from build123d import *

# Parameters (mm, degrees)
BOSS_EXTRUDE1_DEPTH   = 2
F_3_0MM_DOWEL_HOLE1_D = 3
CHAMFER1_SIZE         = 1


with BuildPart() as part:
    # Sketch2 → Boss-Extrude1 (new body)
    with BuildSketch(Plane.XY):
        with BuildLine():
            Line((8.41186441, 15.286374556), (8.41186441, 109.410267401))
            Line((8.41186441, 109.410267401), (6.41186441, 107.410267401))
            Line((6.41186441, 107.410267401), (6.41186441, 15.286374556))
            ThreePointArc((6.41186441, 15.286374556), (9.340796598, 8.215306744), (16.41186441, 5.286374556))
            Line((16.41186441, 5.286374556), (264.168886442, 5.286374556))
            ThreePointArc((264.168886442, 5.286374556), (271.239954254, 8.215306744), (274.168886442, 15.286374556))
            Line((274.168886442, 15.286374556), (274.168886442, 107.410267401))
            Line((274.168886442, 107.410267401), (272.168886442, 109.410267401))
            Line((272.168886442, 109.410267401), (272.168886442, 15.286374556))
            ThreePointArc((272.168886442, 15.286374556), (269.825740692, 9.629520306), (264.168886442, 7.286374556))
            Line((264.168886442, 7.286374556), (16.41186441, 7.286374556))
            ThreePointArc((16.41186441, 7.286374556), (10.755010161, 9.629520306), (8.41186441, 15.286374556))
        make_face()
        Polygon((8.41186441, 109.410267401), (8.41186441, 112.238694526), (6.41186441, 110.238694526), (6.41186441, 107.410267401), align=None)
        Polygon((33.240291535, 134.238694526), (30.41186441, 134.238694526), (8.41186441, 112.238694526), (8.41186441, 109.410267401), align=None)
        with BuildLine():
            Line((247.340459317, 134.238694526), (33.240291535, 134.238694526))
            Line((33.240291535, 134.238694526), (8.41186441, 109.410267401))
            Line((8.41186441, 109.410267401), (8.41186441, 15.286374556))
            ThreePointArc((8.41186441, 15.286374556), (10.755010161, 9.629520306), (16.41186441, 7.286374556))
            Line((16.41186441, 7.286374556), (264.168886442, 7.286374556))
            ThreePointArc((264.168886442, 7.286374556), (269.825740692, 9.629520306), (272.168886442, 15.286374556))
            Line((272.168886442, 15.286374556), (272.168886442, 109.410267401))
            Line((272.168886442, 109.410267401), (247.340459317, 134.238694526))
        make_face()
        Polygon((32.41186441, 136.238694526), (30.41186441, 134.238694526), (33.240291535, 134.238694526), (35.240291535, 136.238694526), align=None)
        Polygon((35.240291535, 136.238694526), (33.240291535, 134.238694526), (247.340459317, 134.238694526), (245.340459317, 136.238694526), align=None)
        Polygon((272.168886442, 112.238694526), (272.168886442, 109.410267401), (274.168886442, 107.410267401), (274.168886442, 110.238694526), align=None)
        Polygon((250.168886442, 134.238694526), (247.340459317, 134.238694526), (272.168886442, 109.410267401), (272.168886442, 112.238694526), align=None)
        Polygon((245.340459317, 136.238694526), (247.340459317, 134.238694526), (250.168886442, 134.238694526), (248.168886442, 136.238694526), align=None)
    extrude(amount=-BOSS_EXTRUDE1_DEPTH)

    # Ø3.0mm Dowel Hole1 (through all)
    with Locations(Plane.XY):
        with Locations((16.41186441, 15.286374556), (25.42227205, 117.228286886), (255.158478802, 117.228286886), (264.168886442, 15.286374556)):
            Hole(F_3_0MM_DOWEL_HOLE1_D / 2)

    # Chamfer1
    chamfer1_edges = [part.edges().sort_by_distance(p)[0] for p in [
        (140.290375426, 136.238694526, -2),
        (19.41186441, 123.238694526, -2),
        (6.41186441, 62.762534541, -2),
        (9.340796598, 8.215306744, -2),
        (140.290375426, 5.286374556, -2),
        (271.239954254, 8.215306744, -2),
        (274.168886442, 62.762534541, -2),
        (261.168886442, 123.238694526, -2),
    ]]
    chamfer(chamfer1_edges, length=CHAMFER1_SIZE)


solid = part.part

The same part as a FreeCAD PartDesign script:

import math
import FreeCAD as App
import Part
import Sketcher

V = App.Vector


def edges_at(feature, points):
    """Names of the edges that pass closest to the given points."""
    edges = feature.Shape.Edges
    near = lambda p: min(range(len(edges)), key=lambda i: edges[i].distToShape(Part.Vertex(*p))[0])
    return sorted({f"Edge{near(p) + 1}" for p in points})

doc = App.newDocument("Part")
params = doc.addObject("Spreadsheet::Sheet", "Params")
for row, (alias, value) in enumerate([
    ("sketch1_radius", "10 mm"),
    ("pad1_length", "2 mm"),
    ("sketch2_diameter", "3 mm"),
    ("hole_diameter", "3 mm"),
    ("chamfer_size", "1 mm"),
], start=1):
    params.set(f"A{row}", alias)
    params.set(f"B{row}", "=" + value)
    params.setAlias(f"B{row}", alias)

body = doc.addObject("PartDesign::Body", "Body")

# Sketch on XY plane
sketch1 = body.newObject("Sketcher::SketchObject", "Sketch")
sketch1.AttachmentSupport = (doc.getObject("XY_Plane"), [""])
sketch1.MapMode = "FlatFace"
sketch1.addGeometry([
    Part.LineSegment(V(6, 110, 0), V(6, 15, 0)),  # 0
    Part.ArcOfCircle(Part.Circle(V(16, 15, 0), V(0, 0, 1), 10), math.radians(180), math.radians(270)),  # 1
    Part.LineSegment(V(16, 5, 0), V(264, 5, 0)),  # 2
    Part.ArcOfCircle(Part.Circle(V(264, 15, 0), V(0, 0, 1), 10), math.radians(-90), math.radians(0)),  # 3
    Part.LineSegment(V(274, 15, 0), V(274, 110, 0)),  # 4
    Part.LineSegment(V(274, 110, 0), V(248, 136, 0)),  # 5
    Part.LineSegment(V(248, 136, 0), V(32, 136, 0)),  # 6
    Part.LineSegment(V(32, 136, 0), V(6, 110, 0)),  # 7
], False)
sketch1.addConstraint([
    Sketcher.Constraint("Tangent", 0, 2, 1, 1),
    Sketcher.Constraint("Tangent", 1, 2, 2, 1),
    Sketcher.Constraint("Tangent", 2, 2, 3, 1),
    Sketcher.Constraint("Tangent", 3, 2, 4, 1),
    Sketcher.Constraint("Coincident", 4, 2, 5, 1),
    Sketcher.Constraint("Coincident", 5, 2, 6, 1),
    Sketcher.Constraint("Coincident", 6, 2, 7, 1),
    Sketcher.Constraint("Coincident", 7, 2, 0, 1),
    Sketcher.Constraint("Vertical", 0),
    Sketcher.Constraint("Horizontal", 2),
    Sketcher.Constraint("Vertical", 4),
    Sketcher.Constraint("Horizontal", 6),
    Sketcher.Constraint("Equal", 1, 3),
    Sketcher.Constraint("Perpendicular", 5, 7),
    Sketcher.Constraint("Horizontal", 4, 2, 7, 2),
    Sketcher.Constraint("Equal", 5, 7),
    Sketcher.Constraint("Radius", 1, 10.0),
    Sketcher.Constraint("DistanceX", 5, 2, 4, 2, 26.0),
    Sketcher.Constraint("DistanceY", 0, 2, 0, 1, 94.95232),
    Sketcher.Constraint("DistanceX", 2, 1, 2, 2, 247.757022),
    Sketcher.Constraint("DistanceX", -1, 1, 1, 3, 16.411864),
    Sketcher.Constraint("DistanceY", -1, 1, 1, 3, 15.286375),
])
sketch1.setExpression("Constraints[16]", "Params.sketch1_radius")
pad1 = body.newObject("PartDesign::Pad", "Pad")
pad1.Profile = sketch1
pad1.setExpression("Length", "Params.pad1_length")
pad1.Reversed = True

# Sketch on XY plane
sketch2 = body.newObject("Sketcher::SketchObject", "Sketch001")
sketch2.AttachmentSupport = (doc.getObject("XY_Plane"), [""])
sketch2.MapMode = "FlatFace"
sketch2.addGeometry([
    Part.Circle(V(16.4, 15.3, 0), V(0, 0, 1), 1.5),
    Part.Circle(V(25.4, 117.2, 0), V(0, 0, 1), 1.5),
    Part.Circle(V(255.2, 117.2, 0), V(0, 0, 1), 1.5),
    Part.Circle(V(264.2, 15.3, 0), V(0, 0, 1), 1.5),
], False)
sketch2.addConstraint([
    Sketcher.Constraint("Equal", 0, 1),
    Sketcher.Constraint("Equal", 1, 2),
    Sketcher.Constraint("Equal", 2, 3),
    Sketcher.Constraint("Horizontal", 1, 3, 2, 3),
    Sketcher.Constraint("Horizontal", 0, 3, 3, 3),
    Sketcher.Constraint("Diameter", 0, 3.0),
    Sketcher.Constraint("DistanceX", -1, 1, 2, 3, 255.158479),
    Sketcher.Constraint("DistanceX", -1, 1, 0, 3, 16.411864),
    Sketcher.Constraint("DistanceY", -1, 1, 0, 3, 15.286375),
    Sketcher.Constraint("DistanceX", -1, 1, 1, 3, 25.422272),
    Sketcher.Constraint("DistanceY", -1, 1, 1, 3, 117.228287),
    Sketcher.Constraint("DistanceX", -1, 1, 3, 3, 264.168886),
])
sketch2.setExpression("Constraints[5]", "Params.sketch2_diameter")
doc.recompute()
hole = body.newObject("PartDesign::Hole", "Hole")
hole.Profile = sketch2
hole.ThreadType = "None"
hole.setExpression("Diameter", "Params.hole_diameter")
hole.DepthType = "ThroughAll"
doc.recompute()

chamfer = body.newObject("PartDesign::Chamfer", "Chamfer")
chamfer.Base = (hole, edges_at(hole, [
    (140.29, 136.239, -2),
    (19.412, 123.239, -2),
    (6.412, 62.763, -2),
    (9.341, 8.215, -2),
    (140.29, 5.286, -2),
    (271.24, 8.215, -2),
    (274.169, 62.763, -2),
    (261.169, 123.239, -2),
]))
chamfer.setExpression("Size", "Params.chamfer_size")

doc.recompute()
